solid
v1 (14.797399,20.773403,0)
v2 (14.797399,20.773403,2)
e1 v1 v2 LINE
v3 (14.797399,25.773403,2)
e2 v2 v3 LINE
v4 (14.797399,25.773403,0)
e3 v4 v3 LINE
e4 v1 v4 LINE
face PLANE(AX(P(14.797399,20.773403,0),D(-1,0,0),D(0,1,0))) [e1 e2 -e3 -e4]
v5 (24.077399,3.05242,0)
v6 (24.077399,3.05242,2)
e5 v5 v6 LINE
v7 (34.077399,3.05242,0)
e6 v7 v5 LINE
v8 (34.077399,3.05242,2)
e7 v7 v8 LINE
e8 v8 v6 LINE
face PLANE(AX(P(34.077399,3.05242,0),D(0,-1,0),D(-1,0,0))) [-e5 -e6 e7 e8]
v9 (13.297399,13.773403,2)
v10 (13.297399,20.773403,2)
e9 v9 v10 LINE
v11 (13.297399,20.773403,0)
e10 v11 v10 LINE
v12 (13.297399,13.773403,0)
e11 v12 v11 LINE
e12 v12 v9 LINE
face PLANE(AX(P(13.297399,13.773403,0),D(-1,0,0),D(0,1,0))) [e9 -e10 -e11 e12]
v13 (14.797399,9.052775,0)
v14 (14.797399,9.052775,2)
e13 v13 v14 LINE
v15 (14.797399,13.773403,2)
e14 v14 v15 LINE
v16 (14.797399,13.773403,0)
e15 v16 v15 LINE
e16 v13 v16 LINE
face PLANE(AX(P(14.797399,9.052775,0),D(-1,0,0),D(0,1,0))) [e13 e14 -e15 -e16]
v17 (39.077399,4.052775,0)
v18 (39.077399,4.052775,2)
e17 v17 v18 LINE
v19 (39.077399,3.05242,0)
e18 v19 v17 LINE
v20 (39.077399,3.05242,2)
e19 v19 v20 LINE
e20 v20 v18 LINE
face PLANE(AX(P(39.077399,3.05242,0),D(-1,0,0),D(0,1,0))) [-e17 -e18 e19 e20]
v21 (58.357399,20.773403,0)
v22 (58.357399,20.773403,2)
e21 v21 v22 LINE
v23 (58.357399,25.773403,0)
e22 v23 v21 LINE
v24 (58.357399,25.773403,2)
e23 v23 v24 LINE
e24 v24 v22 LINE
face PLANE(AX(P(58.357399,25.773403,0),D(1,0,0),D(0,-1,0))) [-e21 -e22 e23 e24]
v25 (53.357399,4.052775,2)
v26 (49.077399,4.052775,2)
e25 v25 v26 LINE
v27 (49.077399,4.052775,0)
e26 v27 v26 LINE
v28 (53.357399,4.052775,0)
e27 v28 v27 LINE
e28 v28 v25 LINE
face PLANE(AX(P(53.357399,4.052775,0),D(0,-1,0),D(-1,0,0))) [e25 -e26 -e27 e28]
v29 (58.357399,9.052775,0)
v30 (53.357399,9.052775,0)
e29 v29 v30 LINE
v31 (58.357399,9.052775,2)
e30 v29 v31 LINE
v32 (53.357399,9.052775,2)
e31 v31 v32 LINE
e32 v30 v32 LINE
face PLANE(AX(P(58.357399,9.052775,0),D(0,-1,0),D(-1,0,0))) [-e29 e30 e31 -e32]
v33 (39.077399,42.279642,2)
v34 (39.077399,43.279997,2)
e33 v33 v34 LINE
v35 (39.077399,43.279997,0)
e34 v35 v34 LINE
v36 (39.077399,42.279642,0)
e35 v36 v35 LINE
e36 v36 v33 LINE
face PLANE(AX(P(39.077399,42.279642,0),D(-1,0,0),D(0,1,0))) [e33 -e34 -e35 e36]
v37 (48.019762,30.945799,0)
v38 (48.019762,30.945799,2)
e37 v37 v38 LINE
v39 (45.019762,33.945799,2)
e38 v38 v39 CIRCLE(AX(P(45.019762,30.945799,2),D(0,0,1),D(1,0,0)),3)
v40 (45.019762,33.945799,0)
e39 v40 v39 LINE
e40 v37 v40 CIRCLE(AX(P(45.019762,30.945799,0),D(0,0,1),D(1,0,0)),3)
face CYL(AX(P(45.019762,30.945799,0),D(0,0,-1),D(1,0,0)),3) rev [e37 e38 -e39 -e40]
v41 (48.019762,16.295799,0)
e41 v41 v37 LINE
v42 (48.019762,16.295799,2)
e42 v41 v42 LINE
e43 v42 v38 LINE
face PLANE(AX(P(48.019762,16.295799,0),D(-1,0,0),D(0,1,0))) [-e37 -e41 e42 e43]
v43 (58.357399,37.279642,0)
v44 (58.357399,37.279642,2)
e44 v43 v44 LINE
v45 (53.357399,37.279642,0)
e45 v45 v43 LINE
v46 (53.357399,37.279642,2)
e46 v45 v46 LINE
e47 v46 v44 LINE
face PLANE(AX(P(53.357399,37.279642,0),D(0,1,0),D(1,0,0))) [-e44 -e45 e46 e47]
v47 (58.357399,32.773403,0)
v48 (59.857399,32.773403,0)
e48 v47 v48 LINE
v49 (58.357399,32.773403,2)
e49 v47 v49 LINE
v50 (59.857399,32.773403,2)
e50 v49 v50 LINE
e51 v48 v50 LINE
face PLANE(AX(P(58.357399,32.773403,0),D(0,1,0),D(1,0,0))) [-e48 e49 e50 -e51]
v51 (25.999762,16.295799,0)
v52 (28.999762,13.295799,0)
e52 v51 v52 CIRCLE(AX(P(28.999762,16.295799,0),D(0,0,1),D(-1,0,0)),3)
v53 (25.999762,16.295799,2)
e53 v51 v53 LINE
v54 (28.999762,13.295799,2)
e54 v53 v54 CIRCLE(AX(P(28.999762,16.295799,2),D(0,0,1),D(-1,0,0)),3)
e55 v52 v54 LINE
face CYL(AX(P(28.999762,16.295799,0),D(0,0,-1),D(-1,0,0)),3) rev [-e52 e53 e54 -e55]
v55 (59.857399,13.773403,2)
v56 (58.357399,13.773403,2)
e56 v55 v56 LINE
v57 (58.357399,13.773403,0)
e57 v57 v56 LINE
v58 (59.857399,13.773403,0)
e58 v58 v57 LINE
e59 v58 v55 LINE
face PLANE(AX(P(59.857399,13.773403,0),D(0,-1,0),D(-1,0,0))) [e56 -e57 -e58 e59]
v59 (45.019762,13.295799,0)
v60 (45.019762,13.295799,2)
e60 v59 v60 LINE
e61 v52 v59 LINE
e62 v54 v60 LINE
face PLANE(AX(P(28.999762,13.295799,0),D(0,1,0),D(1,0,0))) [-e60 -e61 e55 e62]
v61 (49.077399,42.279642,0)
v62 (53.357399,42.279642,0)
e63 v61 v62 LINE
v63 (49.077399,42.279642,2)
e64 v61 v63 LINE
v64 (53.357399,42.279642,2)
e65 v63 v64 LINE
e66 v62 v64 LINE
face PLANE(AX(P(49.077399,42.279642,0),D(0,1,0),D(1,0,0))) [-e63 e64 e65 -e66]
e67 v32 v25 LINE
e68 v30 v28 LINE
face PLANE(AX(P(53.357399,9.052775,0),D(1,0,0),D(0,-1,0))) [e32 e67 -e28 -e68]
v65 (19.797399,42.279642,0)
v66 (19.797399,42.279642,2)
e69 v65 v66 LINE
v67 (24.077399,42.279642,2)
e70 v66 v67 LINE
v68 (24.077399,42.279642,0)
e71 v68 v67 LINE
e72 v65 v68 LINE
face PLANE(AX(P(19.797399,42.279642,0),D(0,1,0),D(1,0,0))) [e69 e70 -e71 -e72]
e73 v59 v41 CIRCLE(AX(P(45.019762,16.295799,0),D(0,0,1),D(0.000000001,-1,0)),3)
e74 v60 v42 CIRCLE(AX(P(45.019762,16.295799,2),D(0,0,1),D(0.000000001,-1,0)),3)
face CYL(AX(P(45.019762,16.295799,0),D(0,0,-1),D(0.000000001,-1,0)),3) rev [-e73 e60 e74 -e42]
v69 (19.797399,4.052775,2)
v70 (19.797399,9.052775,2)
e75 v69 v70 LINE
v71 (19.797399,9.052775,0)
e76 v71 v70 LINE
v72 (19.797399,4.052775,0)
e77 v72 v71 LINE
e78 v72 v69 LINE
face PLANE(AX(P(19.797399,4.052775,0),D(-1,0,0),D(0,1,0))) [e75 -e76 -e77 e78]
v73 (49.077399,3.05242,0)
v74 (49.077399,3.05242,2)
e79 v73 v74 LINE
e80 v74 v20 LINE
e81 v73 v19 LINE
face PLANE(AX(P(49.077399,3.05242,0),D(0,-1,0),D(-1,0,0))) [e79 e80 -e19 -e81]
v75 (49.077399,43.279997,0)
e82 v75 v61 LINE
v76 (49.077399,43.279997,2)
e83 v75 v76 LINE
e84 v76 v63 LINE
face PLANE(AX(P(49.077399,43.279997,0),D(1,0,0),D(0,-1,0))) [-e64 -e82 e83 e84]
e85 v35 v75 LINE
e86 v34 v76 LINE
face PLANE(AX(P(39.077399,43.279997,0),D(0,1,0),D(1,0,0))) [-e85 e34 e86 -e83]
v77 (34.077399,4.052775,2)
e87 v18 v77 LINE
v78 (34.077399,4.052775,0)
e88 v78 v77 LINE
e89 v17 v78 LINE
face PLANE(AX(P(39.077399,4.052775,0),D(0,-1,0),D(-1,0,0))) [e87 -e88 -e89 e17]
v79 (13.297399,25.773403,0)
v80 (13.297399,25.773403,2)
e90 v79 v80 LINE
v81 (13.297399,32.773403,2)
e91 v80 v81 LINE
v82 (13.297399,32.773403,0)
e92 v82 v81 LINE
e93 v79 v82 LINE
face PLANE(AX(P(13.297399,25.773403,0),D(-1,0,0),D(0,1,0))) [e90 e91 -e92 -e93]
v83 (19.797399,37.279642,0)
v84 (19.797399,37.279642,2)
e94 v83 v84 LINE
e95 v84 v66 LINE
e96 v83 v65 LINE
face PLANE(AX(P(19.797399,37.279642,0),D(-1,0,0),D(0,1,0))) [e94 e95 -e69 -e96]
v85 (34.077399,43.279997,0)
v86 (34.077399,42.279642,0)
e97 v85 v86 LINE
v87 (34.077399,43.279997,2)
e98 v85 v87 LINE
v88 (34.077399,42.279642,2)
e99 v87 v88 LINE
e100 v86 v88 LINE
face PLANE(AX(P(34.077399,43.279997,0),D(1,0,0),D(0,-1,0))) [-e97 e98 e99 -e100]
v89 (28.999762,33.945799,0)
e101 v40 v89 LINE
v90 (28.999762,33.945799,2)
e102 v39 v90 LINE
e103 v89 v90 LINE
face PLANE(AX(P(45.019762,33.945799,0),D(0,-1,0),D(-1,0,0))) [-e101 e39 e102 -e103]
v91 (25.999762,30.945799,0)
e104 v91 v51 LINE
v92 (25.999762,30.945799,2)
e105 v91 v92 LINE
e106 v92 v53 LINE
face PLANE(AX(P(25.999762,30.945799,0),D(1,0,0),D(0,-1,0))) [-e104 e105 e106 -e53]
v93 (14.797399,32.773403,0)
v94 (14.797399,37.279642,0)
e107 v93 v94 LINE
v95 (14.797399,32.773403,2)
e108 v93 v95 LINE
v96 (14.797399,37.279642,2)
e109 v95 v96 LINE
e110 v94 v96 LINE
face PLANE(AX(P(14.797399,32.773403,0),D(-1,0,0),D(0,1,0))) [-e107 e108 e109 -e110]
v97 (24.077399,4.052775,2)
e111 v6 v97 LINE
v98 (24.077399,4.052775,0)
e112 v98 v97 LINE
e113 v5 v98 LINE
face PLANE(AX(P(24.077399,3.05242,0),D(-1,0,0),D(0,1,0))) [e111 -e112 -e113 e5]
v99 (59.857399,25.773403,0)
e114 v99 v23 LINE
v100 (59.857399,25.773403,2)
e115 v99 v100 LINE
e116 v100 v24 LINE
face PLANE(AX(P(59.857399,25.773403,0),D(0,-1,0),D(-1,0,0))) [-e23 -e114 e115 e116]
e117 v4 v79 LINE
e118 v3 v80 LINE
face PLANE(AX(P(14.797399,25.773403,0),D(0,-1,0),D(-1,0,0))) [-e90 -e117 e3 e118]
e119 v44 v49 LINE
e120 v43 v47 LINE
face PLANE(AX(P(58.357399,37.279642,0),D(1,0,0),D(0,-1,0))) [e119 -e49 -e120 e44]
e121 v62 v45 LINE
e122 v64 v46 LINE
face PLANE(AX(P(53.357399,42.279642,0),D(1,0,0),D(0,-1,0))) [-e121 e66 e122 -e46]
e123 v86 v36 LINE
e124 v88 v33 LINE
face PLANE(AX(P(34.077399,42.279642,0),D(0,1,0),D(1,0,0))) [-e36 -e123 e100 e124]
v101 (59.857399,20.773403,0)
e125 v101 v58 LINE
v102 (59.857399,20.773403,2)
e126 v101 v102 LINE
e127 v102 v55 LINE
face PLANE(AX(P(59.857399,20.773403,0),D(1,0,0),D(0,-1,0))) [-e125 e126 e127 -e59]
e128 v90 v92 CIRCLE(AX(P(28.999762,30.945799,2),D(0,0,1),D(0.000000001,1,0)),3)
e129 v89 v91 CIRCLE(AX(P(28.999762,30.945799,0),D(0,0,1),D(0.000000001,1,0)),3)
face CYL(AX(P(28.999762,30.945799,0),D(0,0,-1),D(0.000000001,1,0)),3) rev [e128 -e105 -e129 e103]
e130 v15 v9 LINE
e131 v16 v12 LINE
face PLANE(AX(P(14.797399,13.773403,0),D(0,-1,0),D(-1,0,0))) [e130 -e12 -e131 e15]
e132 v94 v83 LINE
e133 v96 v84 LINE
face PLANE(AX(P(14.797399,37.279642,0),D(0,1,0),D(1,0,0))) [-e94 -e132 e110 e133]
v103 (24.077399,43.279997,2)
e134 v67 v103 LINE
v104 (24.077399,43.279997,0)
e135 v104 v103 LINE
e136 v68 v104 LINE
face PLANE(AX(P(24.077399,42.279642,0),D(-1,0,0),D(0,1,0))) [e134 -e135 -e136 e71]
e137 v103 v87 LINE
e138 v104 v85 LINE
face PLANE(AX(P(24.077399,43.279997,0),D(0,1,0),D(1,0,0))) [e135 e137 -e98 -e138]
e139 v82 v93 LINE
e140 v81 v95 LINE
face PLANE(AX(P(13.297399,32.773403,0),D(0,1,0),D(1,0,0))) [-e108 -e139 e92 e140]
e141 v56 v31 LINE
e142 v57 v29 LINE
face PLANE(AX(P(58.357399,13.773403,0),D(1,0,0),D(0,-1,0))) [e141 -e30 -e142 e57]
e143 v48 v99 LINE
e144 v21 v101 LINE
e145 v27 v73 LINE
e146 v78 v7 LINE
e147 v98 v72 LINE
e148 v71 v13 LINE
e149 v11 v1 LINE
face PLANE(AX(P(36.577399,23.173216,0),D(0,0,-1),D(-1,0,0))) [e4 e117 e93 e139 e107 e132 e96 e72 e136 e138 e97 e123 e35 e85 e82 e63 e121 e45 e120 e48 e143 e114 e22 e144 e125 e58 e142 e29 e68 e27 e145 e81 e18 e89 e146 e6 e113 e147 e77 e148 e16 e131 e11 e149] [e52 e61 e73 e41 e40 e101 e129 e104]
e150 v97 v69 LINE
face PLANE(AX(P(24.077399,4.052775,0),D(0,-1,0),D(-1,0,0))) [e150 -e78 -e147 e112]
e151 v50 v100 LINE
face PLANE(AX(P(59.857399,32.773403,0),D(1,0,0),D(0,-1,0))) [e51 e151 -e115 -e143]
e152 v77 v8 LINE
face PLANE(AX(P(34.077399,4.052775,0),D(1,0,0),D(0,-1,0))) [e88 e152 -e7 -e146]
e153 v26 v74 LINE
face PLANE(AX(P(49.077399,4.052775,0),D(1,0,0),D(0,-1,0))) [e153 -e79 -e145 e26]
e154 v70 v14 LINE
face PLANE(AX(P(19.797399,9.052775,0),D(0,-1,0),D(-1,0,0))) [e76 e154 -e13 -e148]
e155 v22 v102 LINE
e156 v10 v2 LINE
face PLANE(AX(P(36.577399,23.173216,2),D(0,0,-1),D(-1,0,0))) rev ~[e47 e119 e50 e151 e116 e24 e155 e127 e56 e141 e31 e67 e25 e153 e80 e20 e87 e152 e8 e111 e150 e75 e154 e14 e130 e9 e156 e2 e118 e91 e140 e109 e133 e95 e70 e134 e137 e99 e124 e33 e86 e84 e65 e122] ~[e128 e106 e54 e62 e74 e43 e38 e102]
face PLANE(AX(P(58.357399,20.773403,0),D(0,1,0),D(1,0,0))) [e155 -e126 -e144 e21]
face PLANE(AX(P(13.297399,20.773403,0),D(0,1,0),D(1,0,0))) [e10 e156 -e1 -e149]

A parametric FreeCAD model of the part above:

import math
import FreeCAD as App
import Part
import Sketcher

V = App.Vector


def add_polygon(sketch, points):
    """Adds a closed chain of lines whose ends are joined by coincident constraints."""
    first, n = sketch.GeometryCount, len(points)
    for a, b in zip(points, points[1:] + points[:1]):
        sketch.addGeometry(Part.LineSegment(App.Vector(*a, 0), App.Vector(*b, 0)), False)
    for i in range(n):
        sketch.addConstraint(Sketcher.Constraint("Coincident", first + i, 2, first + (i + 1) % n, 1))

doc = App.newDocument("Part")
params = doc.addObject("Spreadsheet::Sheet", "Params")
for row, (alias, value) in enumerate([
    ("sketch1_radius", "3 mm"),
    ("sketch1_width", "5 mm"),
    ("sketch1_width2", "10 mm"),
    ("sketch1_height", "7 mm"),
    ("sketch1_width3", "1.5 mm"),
    ("pad1_length", "2 mm"),
], start=1):
    params.set(f"A{row}", alias)
    params.set(f"B{row}", "=" + value)
    params.setAlias(f"B{row}", alias)

body = doc.addObject("PartDesign::Body", "Body")

# Sketch on XY plane
sketch1 = body.newObject("Sketcher::SketchObject", "Sketch")
sketch1.AttachmentSupport = (doc.getObject("XY_Plane"), [""])
sketch1.MapMode = "FlatFace"
add_polygon(sketch1, [(24.077399, 42.279642), (19.797399, 42.279642), (19.797399, 37.279642), (14.797399, 37.279642), (14.797399, 32.773403), (13.297399, 32.773403), (13.297399, 25.773403), (14.797399, 25.773403), (14.797399, 20.773403), (13.297399, 20.773403), (13.297399, 13.773403), (14.797399, 13.773403), (14.797399, 9.052775), (19.797399, 9.052775), (19.797399, 4.052775), (24.077399, 4.052775), (24.077399, 3.05242), (34.077399, 3.05242), (34.077399, 4.052775), (39.077399, 4.052775), (39.077399, 3.05242), (49.077399, 3.05242), (49.077399, 4.052775), (53.357399, 4.052775), (53.357399, 9.052775), (58.357399, 9.052775), (58.357399, 13.773403), (59.857399, 13.773403), (59.857399, 20.773403), (58.357399, 20.773403), (58.357399, 25.773403), (59.857399, 25.773403), (59.857399, 32.773403), (58.357399, 32.773403), (58.357399, 37.279642), (53.357399, 37.279642), (53.357399, 42.279642), (49.077399, 42.279642), (49.077399, 43.279997), (39.077399, 43.279997), (39.077399, 42.279642), (34.077399, 42.279642), (34.077399, 43.279997), (24.077399, 43.279997)])  # lines 0-43
sketch1.addGeometry(Part.ArcOfCircle(Part.Circle(V(45.019762, 30.945799, 0), V(0, 0, 1), 3), math.radians(0), math.radians(90)), False)  # 44
sketch1.addGeometry(Part.LineSegment(V(48.019762, 30.945799, 0), V(48.019762, 16.295799, 0)), False)  # 45
sketch1.addGeometry(Part.ArcOfCircle(Part.Circle(V(45.019762, 16.295799, 0), V(0, 0, 1), 3), math.radians(-90), math.radians(0)), False)  # 46
sketch1.addGeometry(Part.LineSegment(V(45.019762, 13.295799, 0), V(28.999762, 13.295799, 0)), False)  # 47
sketch1.addGeometry(Part.ArcOfCircle(Part.Circle(V(28.999762, 16.295799, 0), V(0, 0, 1), 3), math.radians(180), math.radians(270)), False)  # 48
sketch1.addGeometry(Part.LineSegment(V(25.999762, 16.295799, 0), V(25.999762, 30.945799, 0)), False)  # 49
sketch1.addGeometry(Part.ArcOfCircle(Part.Circle(V(28.999762, 30.945799, 0), V(0, 0, 1), 3), math.radians(90), math.radians(180)), False)  # 50
sketch1.addGeometry(Part.LineSegment(V(28.999762, 33.945799, 0), V(45.019762, 33.945799, 0)), False)  # 51
sketch1.addConstraint([
    Sketcher.Constraint("Tangent", 44, 1, 45, 1),
    Sketcher.Constraint("Tangent", 45, 2, 46, 2),
    Sketcher.Constraint("Tangent", 46, 1, 47, 1),
    Sketcher.Constraint("Tangent", 47, 2, 48, 2),
    Sketcher.Constraint("Tangent", 48, 1, 49, 1),
    Sketcher.Constraint("Tangent", 49, 2, 50, 2),
    Sketcher.Constraint("Tangent", 50, 1, 51, 1),
    Sketcher.Constraint("Tangent", 51, 2, 44, 2),
    Sketcher.Constraint("Horizontal", 0),
    Sketcher.Constraint("Vertical", 1),
    Sketcher.Constraint("Horizontal", 2),
    Sketcher.Constraint("Vertical", 3),
    Sketcher.Constraint("Horizontal", 4),
    Sketcher.Constraint("Vertical", 5),
    Sketcher.Constraint("Horizontal", 6),
    Sketcher.Constraint("Vertical", 7),
    Sketcher.Constraint("Horizontal", 8),
    Sketcher.Constraint("Vertical", 9),
    Sketcher.Constraint("Horizontal", 10),
    Sketcher.Constraint("Vertical", 11),
    Sketcher.Constraint("Horizontal", 12),
    Sketcher.Constraint("Vertical", 13),
    Sketcher.Constraint("Horizontal", 14),
    Sketcher.Constraint("Vertical", 15),
    Sketcher.Constraint("Horizontal", 16),
    Sketcher.Constraint("Vertical", 17),
    Sketcher.Constraint("Horizontal", 18),
    Sketcher.Constraint("Vertical", 19),
    Sketcher.Constraint("Horizontal", 20),
    Sketcher.Constraint("Vertical", 21),
    Sketcher.Constraint("Horizontal", 22),
    Sketcher.Constraint("Vertical", 23),
    Sketcher.Constraint("Horizontal", 24),
    Sketcher.Constraint("Vertical", 25),
    Sketcher.Constraint("Horizontal", 26),
    Sketcher.Constraint("Vertical", 27),
    Sketcher.Constraint("Horizontal", 28),
    Sketcher.Constraint("Vertical", 29),
    Sketcher.Constraint("Horizontal", 30),
    Sketcher.Constraint("Vertical", 31),
    Sketcher.Constraint("Horizontal", 32),
    Sketcher.Constraint("Vertical", 33),
    Sketcher.Constraint("Horizontal", 34),
    Sketcher.Constraint("Vertical", 35),
    Sketcher.Constraint("Horizontal", 36),
    Sketcher.Constraint("Vertical", 37),
    Sketcher.Constraint("Horizontal", 38),
    Sketcher.Constraint("Vertical", 39),
    Sketcher.Constraint("Horizontal", 40),
    Sketcher.Constraint("Vertical", 41),
    Sketcher.Constraint("Horizontal", 42),
    Sketcher.Constraint("Vertical", 43),
    Sketcher.Constraint("Vertical", 45),
    Sketcher.Constraint("Horizontal", 47),
    Sketcher.Constraint("Vertical", 49),
    Sketcher.Constraint("Horizontal", 51),
    Sketcher.Constraint("Equal", 44, 46),
    Sketcher.Constraint("Equal", 46, 48),
    Sketcher.Constraint("Equal", 48, 50),
    Sketcher.Constraint("Horizontal", 14, 2, 17, 2),
    Sketcher.Constraint("Horizontal", 16, 2, 19, 2),
    Sketcher.Constraint("Horizontal", 18, 2, 21, 2),
    Sketcher.Constraint("Horizontal", 12, 2, 23, 2),
    Sketcher.Constraint("Horizontal", 10, 2, 25, 2),
    Sketcher.Constraint("Horizontal", 8, 2, 27, 2),
    Sketcher.Constraint("Horizontal", 6, 2, 29, 2),
    Sketcher.Constraint("Horizontal", 4, 2, 31, 2),
    Sketcher.Constraint("Horizontal", 2, 2, 33, 2),
    Sketcher.Constraint("Horizontal", 0, 2, 35, 2),
    Sketcher.Constraint("Horizontal", 36, 2, 39, 2),
    Sketcher.Constraint("Horizontal", 38, 2, 41, 2),
    Sketcher.Constraint("Vertical", 3, 2, 6, 2),
    Sketcher.Constraint("Vertical", 5, 2, 8, 2),
    Sketcher.Constraint("Vertical", 7, 2, 10, 2),
    Sketcher.Constraint("Vertical", 1, 2, 12, 2),
    Sketcher.Constraint("Vertical", 25, 2, 28, 2),
    Sketcher.Constraint("Vertical", 27, 2, 30, 2),
    Sketcher.Constraint("Vertical", 29, 2, 32, 2),
    Sketcher.Constraint("Vertical", 23, 2, 34, 2),
    Sketcher.Constraint("Vertical", 21, 2, 36, 2),
    Sketcher.Constraint("Vertical", 19, 2, 38, 2),
    Sketcher.Constraint("Vertical", 17, 2, 40, 2),
    Sketcher.Constraint("Vertical", 15, 2, 42, 2),
    Sketcher.Constraint("Equal", 12, 18),
    Sketcher.Constraint("Equal", 16, 20),
    Sketcher.Constraint("Equal", 14, 22),
    Sketcher.Constraint("Equal", 18, 24),
    Sketcher.Constraint("Equal", 10, 26),
    Sketcher.Constraint("Equal", 40, 1),
    Sketcher.Constraint("Equal", 1, 7),
    Sketcher.Constraint("Equal", 5, 9),
    Sketcher.Constraint("Equal", 7, 13),
    Sketcher.Constraint("Equal", 21, 37),
    Sketcher.Constraint("Radius", 44, 3.0),
    Sketcher.Constraint("DistanceX", 2, 2, 2, 1, 5.0),
    Sketcher.Constraint("DistanceX", 16, 1, 16, 2, 10.0),
    Sketcher.Constraint("DistanceY", 5, 2, 5, 1, 7.0),
    Sketcher.Constraint("DistanceX", 4, 2, 4, 1, 1.5),
    Sketcher.Constraint("DistanceX", 0, 2, 0, 1, 4.28),
    Sketcher.Constraint("DistanceX", 47, 2, 47, 1, 16.02),
    Sketcher.Constraint("DistanceY", 45, 2, 45, 1, 14.65),
    Sketcher.Constraint("DistanceY", 3, 2, 3, 1, 4.506239),
    Sketcher.Constraint("DistanceY", -1, 1, 44, 3, 30.945799),
    Sketcher.Constraint("DistanceX", -1, 1, 0, 2, 19.797399),
    Sketcher.Constraint("DistanceY", 44, 3, 37, 2, 12.334198),
    Sketcher.Constraint("DistanceY", 11, 2, 11, 1, 4.720627),
    Sketcher.Constraint("DistanceY", 15, 2, 15, 1, 1.000356),
    Sketcher.Constraint("DistanceX", -1, 1, 44, 3, 45.019762),
])
sketch1.setExpression("Constraints[137]", "Params.sketch1_radius")
sketch1.setExpression("Constraints[138]", "Params.sketch1_width")
sketch1.setExpression("Constraints[139]", "Params.sketch1_width2")
sketch1.setExpression("Constraints[140]", "Params.sketch1_height")
sketch1.setExpression("Constraints[141]", "Params.sketch1_width3")
pad1 = body.newObject("PartDesign::Pad", "Pad")
pad1.Profile = sketch1
pad1.setExpression("Length", "Params.pad1_length")

doc.recompute()
